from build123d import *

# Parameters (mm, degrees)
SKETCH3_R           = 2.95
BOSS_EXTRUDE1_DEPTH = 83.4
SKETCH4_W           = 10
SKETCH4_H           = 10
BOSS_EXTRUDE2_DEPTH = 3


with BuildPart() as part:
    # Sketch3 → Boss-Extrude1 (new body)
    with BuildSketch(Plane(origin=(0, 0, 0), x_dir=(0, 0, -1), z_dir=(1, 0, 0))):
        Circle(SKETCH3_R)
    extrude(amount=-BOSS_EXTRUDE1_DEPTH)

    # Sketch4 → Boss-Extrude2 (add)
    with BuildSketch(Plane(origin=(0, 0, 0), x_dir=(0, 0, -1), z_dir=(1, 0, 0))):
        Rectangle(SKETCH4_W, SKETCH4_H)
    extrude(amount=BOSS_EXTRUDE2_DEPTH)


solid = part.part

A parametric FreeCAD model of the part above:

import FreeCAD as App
import Part
import Sketcher

V = App.Vector
Q = App.Units.Quantity

doc = App.newDocument("Part")
params = doc.addObject("Spreadsheet::Sheet", "Params")
for row, (alias, value) in enumerate([
    ("sketch1_diameter", "5.9 mm"),
    ("pad1_length", "83.4 mm"),
    ("sketch2_width", "10 mm"),
    ("pad2_length", "3 mm"),
], start=1):
    params.set(f"A{row}", alias)
    params.set(f"B{row}", "=" + value)
    params.setAlias(f"B{row}", alias)

body = doc.addObject("PartDesign::Body", "Body")

sketch1 = doc.addObject("Sketcher::SketchObject", "Sketch")
body.addObject(sketch1)
sketch1.AttachmentSupport = (doc.YZ_Plane, [""])
sketch1.MapMode = "FlatFace"
sketch1.addGeometry(Part.Circle(V(0, 0, 0), V(0, 0, 1), 3), False)
sketch1.addConstraint(Sketcher.Constraint("Coincident", 0, 3, -1, 1))
sketch1.addConstraint(Sketcher.Constraint("Diameter", 0, Q("5.9 mm")))
sketch1.setExpression("Constraints[1]", "Params.sketch1_diameter")
pad1 = doc.addObject("PartDesign::Pad", "Pad")
body.addObject(pad1)
pad1.Profile = sketch1
pad1.setExpression("Length", "Params.pad1_length")
pad1.Reversed = True

sketch2 = doc.addObject("Sketcher::SketchObject", "Sketch001")
body.addObject(sketch2)
sketch2.AttachmentSupport = (doc.YZ_Plane, [""])
sketch2.MapMode = "FlatFace"
sketch2.addGeometry(Part.LineSegment(V(5, 5, 0), V(-5, 5, 0)), False)
sketch2.addGeometry(Part.LineSegment(V(-5, 5, 0), V(-5, -5, 0)), False)
sketch2.addGeometry(Part.LineSegment(V(-5, -5, 0), V(5, -5, 0)), False)
sketch2.addGeometry(Part.LineSegment(V(5, -5, 0), V(5, 5, 0)), False)
sketch2.addConstraint(Sketcher.Constraint("Coincident", 0, 2, 1, 1))
sketch2.addConstraint(Sketcher.Constraint("Coincident", 1, 2, 2, 1))
sketch2.addConstraint(Sketcher.Constraint("Coincident", 2, 2, 3, 1))
sketch2.addConstraint(Sketcher.Constraint("Coincident", 3, 2, 0, 1))
sketch2.addConstraint(Sketcher.Constraint("Horizontal", 0))
sketch2.addConstraint(Sketcher.Constraint("Vertical", 1))
sketch2.addConstraint(Sketcher.Constraint("Horizontal", 2))
sketch2.addConstraint(Sketcher.Constraint("Vertical", 3))
sketch2.addConstraint(Sketcher.Constraint("Symmetric", 0, 2, 2, 2, -1, 1))
sketch2.addConstraint(Sketcher.Constraint("Equal", 2, 1))
sketch2.addConstraint(Sketcher.Constraint("DistanceX", 0, 2, 0, 1, Q("10 mm")))
sketch2.setExpression("Constraints[10]", "Params.sketch2_width")
pad2 = doc.addObject("PartDesign::Pad", "Pad001")
body.addObject(pad2)
pad2.Profile = sketch2
pad2.setExpression("Length", "Params.pad2_length")

doc.recompute()
